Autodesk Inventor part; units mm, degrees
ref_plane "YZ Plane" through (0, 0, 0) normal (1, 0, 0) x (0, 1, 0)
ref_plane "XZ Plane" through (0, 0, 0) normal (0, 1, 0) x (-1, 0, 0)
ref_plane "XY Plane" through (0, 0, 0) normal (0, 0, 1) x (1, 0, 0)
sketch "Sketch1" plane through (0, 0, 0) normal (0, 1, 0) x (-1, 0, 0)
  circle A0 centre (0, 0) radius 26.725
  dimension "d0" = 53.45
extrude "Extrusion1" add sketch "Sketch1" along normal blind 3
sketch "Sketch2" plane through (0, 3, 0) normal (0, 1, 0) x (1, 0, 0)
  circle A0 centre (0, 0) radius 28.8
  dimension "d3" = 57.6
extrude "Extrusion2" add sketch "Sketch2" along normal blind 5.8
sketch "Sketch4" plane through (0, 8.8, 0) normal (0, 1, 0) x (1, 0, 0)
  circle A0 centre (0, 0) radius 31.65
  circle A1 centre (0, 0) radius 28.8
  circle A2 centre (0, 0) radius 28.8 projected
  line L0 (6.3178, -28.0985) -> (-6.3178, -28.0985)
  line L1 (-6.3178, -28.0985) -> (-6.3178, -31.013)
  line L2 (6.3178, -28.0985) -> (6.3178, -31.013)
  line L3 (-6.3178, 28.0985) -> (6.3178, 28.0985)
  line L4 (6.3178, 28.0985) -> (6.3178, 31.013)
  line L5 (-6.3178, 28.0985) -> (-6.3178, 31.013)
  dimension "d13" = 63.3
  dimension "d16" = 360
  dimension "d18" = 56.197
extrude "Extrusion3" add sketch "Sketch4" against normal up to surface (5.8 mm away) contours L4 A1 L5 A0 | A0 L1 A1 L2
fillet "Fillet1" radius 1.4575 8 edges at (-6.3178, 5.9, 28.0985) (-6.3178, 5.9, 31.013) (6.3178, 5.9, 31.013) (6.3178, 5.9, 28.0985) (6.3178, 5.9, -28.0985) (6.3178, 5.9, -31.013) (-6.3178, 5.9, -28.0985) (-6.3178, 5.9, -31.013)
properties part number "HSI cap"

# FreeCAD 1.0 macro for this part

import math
import FreeCAD as App
import Part
import Sketcher

V = App.Vector
Q = App.Units.Quantity


def edges_at(feature, points):
    """Names of the edges that pass closest to the given points."""
    edges = feature.Shape.Edges
    near = lambda p: min(range(len(edges)), key=lambda i: edges[i].distToShape(Part.Vertex(*p))[0])
    return sorted({f"Edge{near(p) + 1}" for p in points})

doc = App.newDocument("Part")
body = doc.addObject("PartDesign::Body", "Body")

sketch1 = body.newObject("Sketcher::SketchObject", "Sketch")
sketch1.AttachmentSupport = (doc.getObject("XZ_Plane"), [""])
sketch1.MapMode = "FlatFace"
sketch1.addGeometry(Part.Circle(V(0, 0, 0), V(0, 0, 1), 27), False)
sketch1.addConstraint([
    Sketcher.Constraint("Coincident", 0, 3, -1, 1),
    Sketcher.Constraint("Diameter", 0, Q("53.45 mm")),
])
pad1 = body.newObject("PartDesign::Pad", "Pad")
pad1.Profile = sketch1
pad1.Length = 3
pad1.Reversed = True

sketch2 = body.newObject("Sketcher::SketchObject", "Sketch001")
sketch2.AttachmentSupport = (doc.getObject("XZ_Plane"), [""])
sketch2.MapMode = "FlatFace"
sketch2.AttachmentOffset = App.Placement(V(0, 0, -3), App.Rotation())
sketch2.addGeometry(Part.Circle(V(0, 0, 0), V(0, 0, 1), 29), False)
sketch2.addConstraint([
    Sketcher.Constraint("Coincident", 0, 3, -1, 1),
    Sketcher.Constraint("Diameter", 0, Q("57.6 mm")),
])
pad2 = body.newObject("PartDesign::Pad", "Pad001")
pad2.Profile = sketch2
pad2.Length = 5.8
pad2.Reversed = True

sketch3 = body.newObject("Sketcher::SketchObject", "Sketch002")
sketch3.AttachmentSupport = (doc.getObject("XZ_Plane"), [""])
sketch3.MapMode = "FlatFace"
sketch3.AttachmentOffset = App.Placement(V(0, 0, -8.8), App.Rotation())
sketch3.addGeometry([
    Part.LineSegment(V(6.3, -28.1, 0), V(6.3, -31, 0)),
    Part.ArcOfCircle(Part.Circle(V(0, 0, 0), V(0, 0, 1), 31.6), math.radians(-102), math.radians(-78)),
    Part.LineSegment(V(-6.3, -31, 0), V(-6.3, -28.1, 0)),
    Part.ArcOfCircle(Part.Circle(V(0, 0, 0), V(0, 0, 1), 28.8), math.radians(-103), math.radians(-77)),
    Part.ArcOfCircle(Part.Circle(V(0, 0, 0), V(0, 0, 1), 31.6), math.radians(78), math.radians(102)),
    Part.LineSegment(V(6.3, 31, 0), V(6.3, 28.1, 0)),
    Part.ArcOfCircle(Part.Circle(V(0, 0, 0), V(0, 0, 1), 28.8), math.radians(77), math.radians(103)),
    Part.LineSegment(V(-6.3, 28.1, 0), V(-6.3, 31, 0)),
], False)
sketch3.addConstraint([
    Sketcher.Constraint("Coincident", 0, 2, 1, 2),
    Sketcher.Constraint("Coincident", 1, 1, 2, 1),
    Sketcher.Constraint("Coincident", 2, 2, 3, 1),
    Sketcher.Constraint("Coincident", 3, 2, 0, 1),
    Sketcher.Constraint("Coincident", 4, 1, 5, 1),
    Sketcher.Constraint("Coincident", 5, 2, 6, 1),
    Sketcher.Constraint("Coincident", 6, 2, 7, 1),
    Sketcher.Constraint("Coincident", 7, 2, 4, 2),
    Sketcher.Constraint("Vertical", 0),
    Sketcher.Constraint("Vertical", 2),
    Sketcher.Constraint("Vertical", 5),
    Sketcher.Constraint("Vertical", 7),
    Sketcher.Constraint("Coincident", 1, 3, -1, 1),
    Sketcher.Constraint("Coincident", 3, 3, -1, 1),
    Sketcher.Constraint("Coincident", 4, 3, -1, 1),
    Sketcher.Constraint("Coincident", 6, 3, -1, 1),
    Sketcher.Constraint("Equal", 1, 4),
    Sketcher.Constraint("Equal", 3, 6),
    Sketcher.Constraint("Horizontal", 0, 2, 1, 1),
    Sketcher.Constraint("Horizontal", 5, 2, 6, 2),
    Sketcher.Constraint("Vertical", 3, 2, 4, 1),
    Sketcher.Constraint("Radius", 1, Q("31.65 mm")),
    Sketcher.Constraint("Radius", 3, Q("28.8 mm")),
    Sketcher.Constraint("DistanceY", 0, 2, 0, 1, Q("2.9145 mm")),
])
pad3 = body.newObject("PartDesign::Pad", "Pad002")
pad3.Profile = sketch3
pad3.Length = 5.8
doc.recompute()

fillet = body.newObject("PartDesign::Fillet", "Fillet")
fillet.Base = (pad3, edges_at(pad3, [
    (-6.318, 5.9, 28.099),
    (-6.318, 5.9, 31.013),
    (6.318, 5.9, 31.013),
    (6.318, 5.9, 28.099),
    (6.318, 5.9, -28.099),
    (6.318, 5.9, -31.013),
    (-6.318, 5.9, -28.099),
    (-6.318, 5.9, -31.013),
]))
fillet.Radius = 1.4575

doc.recompute()
